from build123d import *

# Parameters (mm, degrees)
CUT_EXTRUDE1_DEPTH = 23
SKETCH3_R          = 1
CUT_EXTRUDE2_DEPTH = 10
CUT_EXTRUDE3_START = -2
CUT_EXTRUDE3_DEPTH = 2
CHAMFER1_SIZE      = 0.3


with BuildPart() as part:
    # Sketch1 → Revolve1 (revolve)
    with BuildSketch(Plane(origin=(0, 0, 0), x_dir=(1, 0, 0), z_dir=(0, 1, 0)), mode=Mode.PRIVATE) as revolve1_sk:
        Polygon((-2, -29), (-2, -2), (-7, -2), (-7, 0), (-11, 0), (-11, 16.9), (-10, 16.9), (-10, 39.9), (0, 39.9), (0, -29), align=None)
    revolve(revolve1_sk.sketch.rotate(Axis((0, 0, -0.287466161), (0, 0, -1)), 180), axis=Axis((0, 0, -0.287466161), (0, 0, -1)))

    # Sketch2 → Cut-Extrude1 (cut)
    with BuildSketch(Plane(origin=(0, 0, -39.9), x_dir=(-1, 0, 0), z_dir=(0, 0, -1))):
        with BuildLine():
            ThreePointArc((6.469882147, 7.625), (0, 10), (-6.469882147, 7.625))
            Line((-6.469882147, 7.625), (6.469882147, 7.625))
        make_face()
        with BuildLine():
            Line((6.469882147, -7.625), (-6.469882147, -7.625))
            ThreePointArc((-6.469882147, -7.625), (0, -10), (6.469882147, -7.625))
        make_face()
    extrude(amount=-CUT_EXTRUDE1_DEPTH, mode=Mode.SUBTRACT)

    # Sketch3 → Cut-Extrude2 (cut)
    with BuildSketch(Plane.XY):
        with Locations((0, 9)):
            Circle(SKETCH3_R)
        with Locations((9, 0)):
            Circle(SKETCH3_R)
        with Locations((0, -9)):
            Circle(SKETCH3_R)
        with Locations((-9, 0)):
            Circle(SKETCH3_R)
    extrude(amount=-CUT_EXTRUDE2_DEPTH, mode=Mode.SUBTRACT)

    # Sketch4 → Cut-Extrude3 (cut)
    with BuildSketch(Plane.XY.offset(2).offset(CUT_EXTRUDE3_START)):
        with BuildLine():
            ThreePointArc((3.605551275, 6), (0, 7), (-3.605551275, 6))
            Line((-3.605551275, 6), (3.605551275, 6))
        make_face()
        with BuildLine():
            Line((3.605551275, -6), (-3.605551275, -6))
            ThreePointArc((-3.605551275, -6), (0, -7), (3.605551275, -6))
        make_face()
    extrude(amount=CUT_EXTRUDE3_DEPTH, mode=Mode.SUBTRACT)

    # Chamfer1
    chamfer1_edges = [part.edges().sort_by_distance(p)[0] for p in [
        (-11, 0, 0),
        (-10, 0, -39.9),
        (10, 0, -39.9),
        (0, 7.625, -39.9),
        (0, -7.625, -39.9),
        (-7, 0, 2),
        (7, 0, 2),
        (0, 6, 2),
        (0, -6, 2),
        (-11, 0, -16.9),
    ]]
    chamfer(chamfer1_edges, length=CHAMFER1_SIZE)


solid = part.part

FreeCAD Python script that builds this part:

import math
import FreeCAD as App
import Part
import Sketcher

V = App.Vector
Q = App.Units.Quantity


def edges_at(feature, points):
    """Names of the edges that pass closest to the given points."""
    edges = feature.Shape.Edges
    near = lambda p: min(range(len(edges)), key=lambda i: edges[i].distToShape(Part.Vertex(*p))[0])
    return sorted({f"Edge{near(p) + 1}" for p in points})

doc = App.newDocument("Part")
params = doc.addObject("Spreadsheet::Sheet", "Params")
for row, (alias, value) in enumerate([
    ("sketch1_width", "2 mm"),
    ("sketch1_width2", "10 mm"),
    ("sketch1_width3", "1 mm"),
    ("sketch1_width4", "4 mm"),
    ("sketch1_height", "27 mm"),
    ("revolution_angle", "360 deg"),
    ("sketch2_radius", "10 mm"),
    ("pocket1_length", "23 mm"),
    ("sketch3_diameter", "2 mm"),
    ("pocket2_length", "10 mm"),
    ("sketch4_radius", "7 mm"),
    ("pocket3_length", "2 mm"),
    ("chamfer_size", "0.3 mm"),
], start=1):
    params.set(f"A{row}", alias)
    params.set(f"B{row}", "=" + value)
    params.setAlias(f"B{row}", alias)

body = doc.addObject("PartDesign::Body", "Body")

# Sketch on XZ plane
sketch1 = body.newObject("Sketcher::SketchObject", "Sketch")
sketch1.AttachmentSupport = (doc.getObject("XZ_Plane"), [""])
sketch1.MapMode = "FlatFace"
sketch1.addGeometry([
    Part.LineSegment(V(-2, 2, 0), V(-2, 29, 0)),  # 0
    Part.LineSegment(V(-2, 29, 0), V(0, 29, 0)),  # 1
    Part.LineSegment(V(0, 29, 0), V(0, -39.9, 0)),  # 2
    Part.LineSegment(V(0, -39.9, 0), V(-10, -39.9, 0)),  # 3
    Part.LineSegment(V(-10, -39.9, 0), V(-10, -16.9, 0)),  # 4
    Part.LineSegment(V(-10, -16.9, 0), V(-11, -16.9, 0)),  # 5
    Part.LineSegment(V(-11, -16.9, 0), V(-11, 0, 0)),  # 6
    Part.LineSegment(V(-11, 0, 0), V(-7, 0, 0)),  # 7
    Part.LineSegment(V(-7, 0, 0), V(-7, 2, 0)),  # 8
    Part.LineSegment(V(-7, 2, 0), V(-2, 2, 0)),  # 9
], False)
sketch1.addConstraint([
    Sketcher.Constraint("Coincident", 0, 2, 1, 1),
    Sketcher.Constraint("Coincident", 1, 2, 2, 1),
    Sketcher.Constraint("Coincident", 2, 2, 3, 1),
    Sketcher.Constraint("Coincident", 3, 2, 4, 1),
    Sketcher.Constraint("Coincident", 4, 2, 5, 1),
    Sketcher.Constraint("Coincident", 5, 2, 6, 1),
    Sketcher.Constraint("Coincident", 6, 2, 7, 1),
    Sketcher.Constraint("Coincident", 7, 2, 8, 1),
    Sketcher.Constraint("Coincident", 8, 2, 9, 1),
    Sketcher.Constraint("Coincident", 9, 2, 0, 1),
    Sketcher.Constraint("Vertical", 0),
    Sketcher.Constraint("Horizontal", 1),
    Sketcher.Constraint("Vertical", 2),
    Sketcher.Constraint("Horizontal", 3),
    Sketcher.Constraint("Vertical", 4),
    Sketcher.Constraint("Horizontal", 5),
    Sketcher.Constraint("Vertical", 6),
    Sketcher.Constraint("Horizontal", 7),
    Sketcher.Constraint("Vertical", 8),
    Sketcher.Constraint("Horizontal", 9),
    Sketcher.Constraint("PointOnObject", 1, 2, -2),
    Sketcher.Constraint("PointOnObject", 6, 2, -1),
    Sketcher.Constraint("Equal", 1, 8),
    Sketcher.Constraint("DistanceX", 1, 1, 1, 2, Q("2 mm")),
    Sketcher.Constraint("DistanceX", 3, 2, 3, 1, Q("10 mm")),
    Sketcher.Constraint("DistanceX", 5, 2, 5, 1, Q("1 mm")),
    Sketcher.Constraint("DistanceX", 7, 1, 7, 2, Q("4 mm")),
    Sketcher.Constraint("DistanceY", 0, 1, 0, 2, Q("27 mm")),
    Sketcher.Constraint("DistanceY", 4, 1, 4, 2, Q("23 mm")),
    Sketcher.Constraint("DistanceY", 2, 2, 2, 1, Q("68.9 mm")),
])
sketch1.setExpression("Constraints[23]", "Params.sketch1_width")
sketch1.setExpression("Constraints[24]", "Params.sketch1_width2")
sketch1.setExpression("Constraints[25]", "Params.sketch1_width3")
sketch1.setExpression("Constraints[26]", "Params.sketch1_width4")
sketch1.setExpression("Constraints[27]", "Params.sketch1_height")
revolution = body.newObject("PartDesign::Revolution", "Revolution")
revolution.Profile = sketch1
revolution.ReferenceAxis = (sketch1, ["V_Axis"])
revolution.setExpression("Angle", "Params.revolution_angle")

# Sketch on XY plane
sketch2 = body.newObject("Sketcher::SketchObject", "Sketch001")
sketch2.AttachmentSupport = (doc.getObject("XY_Plane"), [""])
sketch2.MapMode = "FlatFace"
sketch2.AttachmentOffset = App.Placement(V(0, 0, -39.9), App.Rotation())
sketch2.addGeometry([
    Part.ArcOfCircle(Part.Circle(V(0, 0, 0), V(0, 0, 1), 10), math.radians(50), math.radians(130)),
    Part.LineSegment(V(6, 8, 0), V(-6, 8, 0)),
    Part.LineSegment(V(-6, -8, 0), V(6, -8, 0)),
    Part.ArcOfCircle(Part.Circle(V(0, 0, 0), V(0, 0, 1), 10), math.radians(-130), math.radians(-50)),
], False)
sketch2.addConstraint([
    Sketcher.Constraint("Coincident", 0, 1, 1, 1),
    Sketcher.Constraint("Coincident", 1, 2, 0, 2),
    Sketcher.Constraint("Coincident", 2, 1, 3, 1),
    Sketcher.Constraint("Coincident", 3, 2, 2, 2),
    Sketcher.Constraint("Horizontal", 1),
    Sketcher.Constraint("Horizontal", 2),
    Sketcher.Constraint("Coincident", 0, 3, -1, 1),
    Sketcher.Constraint("Coincident", 3, 3, -1, 1),
    Sketcher.Constraint("Equal", 0, 3),
    Sketcher.Constraint("Vertical", 1, 2, 2, 1),
    Sketcher.Constraint("Radius", 0, Q("10 mm")),
    Sketcher.Constraint("DistanceY", 2, 1, 1, 2, Q("15.25 mm")),
])
sketch2.setExpression("Constraints[10]", "Params.sketch2_radius")
pocket1 = body.newObject("PartDesign::Pocket", "Pocket")
pocket1.Profile = sketch2
pocket1.setExpression("Length", "Params.pocket1_length")
pocket1.Reversed = True

# Sketch on XY plane
sketch3 = body.newObject("Sketcher::SketchObject", "Sketch002")
sketch3.AttachmentSupport = (doc.getObject("XY_Plane"), [""])
sketch3.MapMode = "FlatFace"
sketch3.addGeometry([
    Part.Circle(V(0, 9, 0), V(0, 0, 1), 1),
    Part.Circle(V(9, 0, 0), V(0, 0, 1), 1),
    Part.Circle(V(0, -9, 0), V(0, 0, 1), 1),
    Part.Circle(V(-9, 0, 0), V(0, 0, 1), 1),
], False)
sketch3.addConstraint([
    Sketcher.Constraint("Equal", 0, 1),
    Sketcher.Constraint("Equal", 1, 2),
    Sketcher.Constraint("Equal", 2, 3),
    Sketcher.Constraint("Symmetric", 0, 3, 2, 3, -1, 1),
    Sketcher.Constraint("Symmetric", 1, 3, 3, 3, -1, 1),
    Sketcher.Constraint("PointOnObject", 0, 3, -2),
    Sketcher.Constraint("PointOnObject", 1, 3, -1),
    Sketcher.Constraint("Diameter", 0, Q("2 mm")),
    Sketcher.Constraint("DistanceY", -1, 1, 0, 3, Q("9 mm")),
    Sketcher.Constraint("DistanceX", -1, 1, 1, 3, Q("9 mm")),
])
sketch3.setExpression("Constraints[7]", "Params.sketch3_diameter")
pocket2 = body.newObject("PartDesign::Pocket", "Pocket001")
pocket2.Profile = sketch3
pocket2.setExpression("Length", "Params.pocket2_length")

# Sketch on XY plane
sketch4 = body.newObject("Sketcher::SketchObject", "Sketch003")
sketch4.AttachmentSupport = (doc.getObject("XY_Plane"), [""])
sketch4.MapMode = "FlatFace"
sketch4.addGeometry([
    Part.ArcOfCircle(Part.Circle(V(0, 0, 0), V(0, 0, 1), 7), math.radians(59), math.radians(121)),
    Part.LineSegment(V(-4, 6, 0), V(4, 6, 0)),
    Part.LineSegment(V(4, -6, 0), V(-4, -6, 0)),
    Part.ArcOfCircle(Part.Circle(V(0, 0, 0), V(0, 0, 1), 7), math.radians(-121), math.radians(-59)),
], False)
sketch4.addConstraint([
    Sketcher.Constraint("Coincident", 0, 1, 1, 2),
    Sketcher.Constraint("Coincident", 1, 1, 0, 2),
    Sketcher.Constraint("Coincident", 2, 1, 3, 2),
    Sketcher.Constraint("Coincident", 3, 1, 2, 2),
    Sketcher.Constraint("Horizontal", 1),
    Sketcher.Constraint("Horizontal", 2),
    Sketcher.Constraint("Coincident", 0, 3, -1, 1),
    Sketcher.Constraint("Coincident", 3, 3, -1, 1),
    Sketcher.Constraint("Equal", 0, 3),
    Sketcher.Constraint("Vertical", 0, 1, 2, 1),
    Sketcher.Constraint("Radius", 0, Q("7 mm")),
    Sketcher.Constraint("DistanceY", -1, 1, 0, 1, Q("6 mm")),
])
sketch4.setExpression("Constraints[10]", "Params.sketch4_radius")
pocket3 = body.newObject("PartDesign::Pocket", "Pocket002")
pocket3.Profile = sketch4
pocket3.setExpression("Length", "Params.pocket3_length")
pocket3.Reversed = True
doc.recompute()

chamfer = body.newObject("PartDesign::Chamfer", "Chamfer")
chamfer.Base = (pocket3, edges_at(pocket3, [
    (-11, 0, 0),
    (-10, 0, -39.9),
    (10, 0, -39.9),
    (0, 7.625, -39.9),
    (0, -7.625, -39.9),
    (-7, 0, 2),
    (7, 0, 2),
    (0, 6, 2),
    (0, -6, 2),
    (-11, 0, -16.9),
]))
chamfer.setExpression("Size", "Params.chamfer_size")

doc.recompute()
